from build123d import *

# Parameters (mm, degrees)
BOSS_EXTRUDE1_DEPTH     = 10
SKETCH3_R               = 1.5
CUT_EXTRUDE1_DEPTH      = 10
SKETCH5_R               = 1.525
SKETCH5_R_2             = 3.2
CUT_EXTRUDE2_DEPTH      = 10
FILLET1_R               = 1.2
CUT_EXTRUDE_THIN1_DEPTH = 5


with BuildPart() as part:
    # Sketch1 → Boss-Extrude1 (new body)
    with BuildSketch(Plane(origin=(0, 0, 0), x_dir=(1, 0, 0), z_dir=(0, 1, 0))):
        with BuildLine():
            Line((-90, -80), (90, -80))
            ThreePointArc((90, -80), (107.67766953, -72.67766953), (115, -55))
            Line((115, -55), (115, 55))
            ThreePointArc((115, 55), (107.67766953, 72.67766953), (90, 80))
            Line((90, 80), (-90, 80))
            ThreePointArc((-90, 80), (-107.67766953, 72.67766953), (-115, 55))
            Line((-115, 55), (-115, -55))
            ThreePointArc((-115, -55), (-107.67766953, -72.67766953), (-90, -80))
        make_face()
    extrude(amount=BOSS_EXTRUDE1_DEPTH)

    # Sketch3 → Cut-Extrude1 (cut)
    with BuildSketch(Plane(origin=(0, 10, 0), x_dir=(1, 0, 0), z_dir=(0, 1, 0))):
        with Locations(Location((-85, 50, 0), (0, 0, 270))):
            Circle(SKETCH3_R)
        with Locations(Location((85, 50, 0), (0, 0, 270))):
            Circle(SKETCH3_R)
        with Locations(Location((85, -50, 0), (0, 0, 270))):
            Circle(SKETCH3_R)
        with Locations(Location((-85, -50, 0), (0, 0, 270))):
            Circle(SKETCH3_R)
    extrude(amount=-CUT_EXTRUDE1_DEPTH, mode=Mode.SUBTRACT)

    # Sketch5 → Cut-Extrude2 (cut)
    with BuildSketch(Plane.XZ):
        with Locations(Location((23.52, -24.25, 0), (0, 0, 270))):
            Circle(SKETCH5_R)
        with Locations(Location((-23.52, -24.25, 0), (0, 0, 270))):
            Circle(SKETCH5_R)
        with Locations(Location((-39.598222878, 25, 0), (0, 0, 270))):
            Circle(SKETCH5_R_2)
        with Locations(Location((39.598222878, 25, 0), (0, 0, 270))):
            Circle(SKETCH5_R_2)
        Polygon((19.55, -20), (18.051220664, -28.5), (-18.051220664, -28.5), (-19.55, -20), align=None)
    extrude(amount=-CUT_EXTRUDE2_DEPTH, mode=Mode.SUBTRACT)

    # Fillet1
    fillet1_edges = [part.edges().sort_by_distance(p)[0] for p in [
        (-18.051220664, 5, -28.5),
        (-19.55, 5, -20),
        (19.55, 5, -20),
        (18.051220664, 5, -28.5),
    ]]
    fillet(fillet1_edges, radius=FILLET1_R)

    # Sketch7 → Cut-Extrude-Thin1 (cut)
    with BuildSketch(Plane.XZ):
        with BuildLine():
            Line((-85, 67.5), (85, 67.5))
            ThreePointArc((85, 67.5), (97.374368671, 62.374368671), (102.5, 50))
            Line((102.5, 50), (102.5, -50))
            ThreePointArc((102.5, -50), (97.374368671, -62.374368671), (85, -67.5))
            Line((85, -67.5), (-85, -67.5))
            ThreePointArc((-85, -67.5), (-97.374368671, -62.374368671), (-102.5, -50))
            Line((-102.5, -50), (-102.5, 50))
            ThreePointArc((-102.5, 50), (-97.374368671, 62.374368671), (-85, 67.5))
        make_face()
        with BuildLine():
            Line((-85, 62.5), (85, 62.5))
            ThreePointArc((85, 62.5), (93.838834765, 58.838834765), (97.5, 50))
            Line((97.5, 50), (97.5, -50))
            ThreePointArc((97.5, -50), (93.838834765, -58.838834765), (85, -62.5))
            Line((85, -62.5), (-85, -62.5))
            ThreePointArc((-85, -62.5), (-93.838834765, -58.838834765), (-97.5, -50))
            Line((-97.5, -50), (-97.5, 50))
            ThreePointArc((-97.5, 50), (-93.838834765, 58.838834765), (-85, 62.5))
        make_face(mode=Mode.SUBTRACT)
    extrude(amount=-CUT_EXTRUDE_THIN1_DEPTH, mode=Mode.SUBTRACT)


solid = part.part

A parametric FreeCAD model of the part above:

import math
import FreeCAD as App
import Part
import Sketcher
from FreeCAD import Vector
Q = App.Units.Quantity


def edges_at(feature, points):
    """Names of the edges that pass closest to the given points."""
    edges = feature.Shape.Edges
    near = lambda p: min(range(len(edges)), key=lambda i: edges[i].distToShape(Part.Vertex(*p))[0])
    return sorted({f"Edge{near(p) + 1}" for p in points})

doc = App.newDocument("Part")
body = doc.addObject("PartDesign::Body", "Body")

sketch1 = doc.addObject("Sketcher::SketchObject", "Sketch")
body.addObject(sketch1)
sketch1.AttachmentSupport = (doc.XZ_Plane, [""])
sketch1.MapMode = "FlatFace"
sketch1.addGeometry([
    Part.LineSegment(Vector(-90, 80, 0), Vector(90, 80, 0)),
    Part.ArcOfCircle(Part.Circle(Vector(90, 55, 0), Vector(0, 0, 1), 25), math.radians(0), math.radians(90)),
    Part.LineSegment(Vector(115, 55, 0), Vector(115, -55, 0)),
    Part.ArcOfCircle(Part.Circle(Vector(90, -55, 0), Vector(0, 0, 1), 25), math.radians(-90), math.radians(0)),
    Part.LineSegment(Vector(90, -80, 0), Vector(-90, -80, 0)),
    Part.ArcOfCircle(Part.Circle(Vector(-90, -55, 0), Vector(0, 0, 1), 25), math.radians(180), math.radians(270)),
    Part.LineSegment(Vector(-115, -55, 0), Vector(-115, 55, 0)),
    Part.ArcOfCircle(Part.Circle(Vector(-90, 55, 0), Vector(0, 0, 1), 25), math.radians(90), math.radians(180)),
], False)
sketch1.addConstraint([
    Sketcher.Constraint("Tangent", 0, 2, 1, 2),
    Sketcher.Constraint("Tangent", 1, 1, 2, 1),
    Sketcher.Constraint("Tangent", 2, 2, 3, 2),
    Sketcher.Constraint("Tangent", 3, 1, 4, 1),
    Sketcher.Constraint("Tangent", 4, 2, 5, 2),
    Sketcher.Constraint("Tangent", 5, 1, 6, 1),
    Sketcher.Constraint("Tangent", 6, 2, 7, 2),
    Sketcher.Constraint("Tangent", 7, 1, 0, 1),
    Sketcher.Constraint("Horizontal", 0),
    Sketcher.Constraint("Vertical", 2),
    Sketcher.Constraint("Horizontal", 4),
    Sketcher.Constraint("Vertical", 6),
    Sketcher.Constraint("Equal", 1, 3),
    Sketcher.Constraint("Equal", 3, 5),
    Sketcher.Constraint("Equal", 5, 7),
    Sketcher.Constraint("Symmetric", 1, 3, 5, 3, -1, 1),
    Sketcher.Constraint("Radius", 1, 25.0),
    Sketcher.Constraint("DistanceX", 0, 1, 0, 2, 180.0),
    Sketcher.Constraint("DistanceY", 2, 2, 2, 1, 110.0),
])
pad1 = doc.addObject("PartDesign::Pad", "Pad")
body.addObject(pad1)
pad1.Profile = sketch1
pad1.Length = 10
pad1.Reversed = True

sketch2 = doc.addObject("Sketcher::SketchObject", "Sketch001")
body.addObject(sketch2)
sketch2.AttachmentSupport = (doc.XZ_Plane, [""])
sketch2.MapMode = "FlatFace"
sketch2.AttachmentOffset = App.Placement(Vector(0, 0, -10), App.Rotation())
sketch2.addGeometry([
    Part.Circle(Vector(-85, -50, 0), Vector(0, 0, 1), 1.5),
    Part.Circle(Vector(85, -50, 0), Vector(0, 0, 1), 1.5),
    Part.Circle(Vector(85, 50, 0), Vector(0, 0, 1), 1.5),
    Part.Circle(Vector(-85, 50, 0), Vector(0, 0, 1), 1.5),
], False)
sketch2.addConstraint([
    Sketcher.Constraint("Equal", 0, 1),
    Sketcher.Constraint("Equal", 1, 2),
    Sketcher.Constraint("Equal", 2, 3),
    Sketcher.Constraint("Symmetric", 0, 3, 2, 3, -1, 1),
    Sketcher.Constraint("Symmetric", 1, 3, 3, 3, -1, 1),
    Sketcher.Constraint("Symmetric", 0, 3, 1, 3, -2),
    Sketcher.Constraint("Diameter", 0, 3.0),
    Sketcher.Constraint("DistanceX", 0, 3, -1, 1, 85.0),
    Sketcher.Constraint("DistanceY", 0, 3, -1, 1, 50.0),
])
pocket1 = doc.addObject("PartDesign::Pocket", "Pocket")
body.addObject(pocket1)
pocket1.Profile = sketch2
pocket1.Length = 10
pocket1.Reversed = True

sketch3 = doc.addObject("Sketcher::SketchObject", "Sketch002")
body.addObject(sketch3)
sketch3.AttachmentSupport = (doc.XZ_Plane, [""])
sketch3.MapMode = "FlatFace"
sketch3.addGeometry([
    Part.Circle(Vector(23.5, -24.2, 0), Vector(0, 0, 1), 1.5),
    Part.Circle(Vector(-23.5, -24.2, 0), Vector(0, 0, 1), 1.5),
    Part.Circle(Vector(-39.6, 25, 0), Vector(0, 0, 1), 3.2),
    Part.Circle(Vector(39.6, 25, 0), Vector(0, 0, 1), 3.2),
    Part.LineSegment(Vector(18.1, -28.5, 0), Vector(19.6, -20, 0)),
    Part.LineSegment(Vector(19.6, -20, 0), Vector(-19.6, -20, 0)),
    Part.LineSegment(Vector(-19.6, -20, 0), Vector(-18.1, -28.5, 0)),
    Part.LineSegment(Vector(-18.1, -28.5, 0), Vector(18.1, -28.5, 0)),
], False)
sketch3.addConstraint([
    Sketcher.Constraint("Coincident", 4, 2, 5, 1),
    Sketcher.Constraint("Coincident", 5, 2, 6, 1),
    Sketcher.Constraint("Coincident", 6, 2, 7, 1),
    Sketcher.Constraint("Coincident", 7, 2, 4, 1),
    Sketcher.Constraint("Horizontal", 5),
    Sketcher.Constraint("Horizontal", 7),
    Sketcher.Constraint("Equal", 0, 1),
    Sketcher.Constraint("Equal", 2, 3),
    Sketcher.Constraint("Symmetric", 0, 3, 1, 3, -2),
    Sketcher.Constraint("Symmetric", 2, 3, 3, 3, -2),
    Sketcher.Constraint("Equal", 4, 6),
    Sketcher.Constraint("Diameter", 2, 6.4),
    Sketcher.Constraint("Diameter", 0, 3.05),
    Sketcher.Constraint("Angle", 4, Q("80 deg")),
    Sketcher.Constraint("DistanceX", 5, 2, 5, 1, 39.1),
    Sketcher.Constraint("DistanceY", -1, 1, 2, 3, 25.0),
    Sketcher.Constraint("DistanceY", 4, 2, -1, 1, 20.0),
    Sketcher.Constraint("DistanceY", 6, 2, -1, 1, 28.5),
    Sketcher.Constraint("DistanceX", -1, 1, 0, 3, 23.52),
    Sketcher.Constraint("DistanceY", 0, 3, -1, 1, 24.25),
    Sketcher.Constraint("DistanceX", -1, 1, 4, 2, 19.55),
    Sketcher.Constraint("DistanceX", 2, 3, -1, 1, 39.598223),
])
pocket2 = doc.addObject("PartDesign::Pocket", "Pocket001")
body.addObject(pocket2)
pocket2.Profile = sketch3
pocket2.Length = 10
doc.recompute()

fillet = doc.addObject("PartDesign::Fillet", "Fillet")
body.addObject(fillet)
fillet.Base = (pocket2, edges_at(pocket2, [
    (-18.051, 5, -28.5),
    (-19.55, 5, -20),
    (19.55, 5, -20),
    (18.051, 5, -28.5),
]))
fillet.Radius = 1.2

sketch4 = doc.addObject("Sketcher::SketchObject", "Sketch003")
body.addObject(sketch4)
sketch4.AttachmentSupport = (doc.XZ_Plane, [""])
sketch4.MapMode = "FlatFace"
sketch4.addGeometry([
    Part.LineSegment(Vector(85, 68, 0), Vector(-85, 68, 0)),
    Part.ArcOfCircle(Part.Circle(Vector(-85, 50, 0), Vector(0, 0, 1), 17), math.radians(90), math.radians(180)),
    Part.LineSegment(Vector(-102, 50, 0), Vector(-102, -50, 0)),
    Part.ArcOfCircle(Part.Circle(Vector(-85, -50, 0), Vector(0, 0, 1), 17), math.radians(180), math.radians(270)),
    Part.LineSegment(Vector(-85, -68, 0), Vector(85, -68, 0)),
    Part.ArcOfCircle(Part.Circle(Vector(85, -50, 0), Vector(0, 0, 1), 17), math.radians(-90), math.radians(0)),
    Part.LineSegment(Vector(102, -50, 0), Vector(102, 50, 0)),
    Part.ArcOfCircle(Part.Circle(Vector(85, 50, 0), Vector(0, 0, 1), 17), math.radians(0), math.radians(90)),
    Part.LineSegment(Vector(-85, 62, 0), Vector(85, 62, 0)),
    Part.ArcOfCircle(Part.Circle(Vector(85, 50, 0), Vector(0, 0, 1), 12), math.radians(0), math.radians(90)),
    Part.LineSegment(Vector(98, 50, 0), Vector(98, -50, 0)),
    Part.ArcOfCircle(Part.Circle(Vector(85, -50, 0), Vector(0, 0, 1), 12), math.radians(-90), math.radians(0)),
    Part.LineSegment(Vector(85, -62, 0), Vector(-85, -62, 0)),
    Part.ArcOfCircle(Part.Circle(Vector(-85, -50, 0), Vector(0, 0, 1), 12), math.radians(180), math.radians(270)),
    Part.LineSegment(Vector(-98, -50, 0), Vector(-98, 50, 0)),
    Part.ArcOfCircle(Part.Circle(Vector(-85, 50, 0), Vector(0, 0, 1), 12), math.radians(90), math.radians(180)),
], False)
sketch4.addConstraint([
    Sketcher.Constraint("Tangent", 0, 2, 1, 1),
    Sketcher.Constraint("Tangent", 1, 2, 2, 1),
    Sketcher.Constraint("Tangent", 2, 2, 3, 1),
    Sketcher.Constraint("Tangent", 3, 2, 4, 1),
    Sketcher.Constraint("Tangent", 4, 2, 5, 1),
    Sketcher.Constraint("Tangent", 5, 2, 6, 1),
    Sketcher.Constraint("Tangent", 6, 2, 7, 1),
    Sketcher.Constraint("Tangent", 7, 2, 0, 1),
    Sketcher.Constraint("Tangent", 8, 2, 9, 2),
    Sketcher.Constraint("Tangent", 9, 1, 10, 1),
    Sketcher.Constraint("Tangent", 10, 2, 11, 2),
    Sketcher.Constraint("Tangent", 11, 1, 12, 1),
    Sketcher.Constraint("Tangent", 12, 2, 13, 2),
    Sketcher.Constraint("Tangent", 13, 1, 14, 1),
    Sketcher.Constraint("Tangent", 14, 2, 15, 2),
    Sketcher.Constraint("Tangent", 15, 1, 8, 1),
    Sketcher.Constraint("Horizontal", 0),
    Sketcher.Constraint("Vertical", 2),
    Sketcher.Constraint("Horizontal", 4),
    Sketcher.Constraint("Vertical", 6),
    Sketcher.Constraint("Horizontal", 8),
    Sketcher.Constraint("Vertical", 10),
    Sketcher.Constraint("Horizontal", 12),
    Sketcher.Constraint("Vertical", 14),
    Sketcher.Constraint("Coincident", 9, 3, 7, 3),
    Sketcher.Constraint("Coincident", 11, 3, 5, 3),
    Sketcher.Constraint("Coincident", 13, 3, 3, 3),
    Sketcher.Constraint("Equal", 1, 3),
    Sketcher.Constraint("Equal", 3, 5),
    Sketcher.Constraint("Equal", 5, 7),
    Sketcher.Constraint("Equal", 13, 15),
    Sketcher.Constraint("Symmetric", 1, 3, 5, 3, -1, 1),
    Sketcher.Constraint("Radius", 1, 17.5),
    Sketcher.Constraint("Radius", 9, 12.5),
    Sketcher.Constraint("DistanceX", 0, 2, 0, 1, 170.0),
    Sketcher.Constraint("DistanceY", 2, 2, 2, 1, 100.0),
])
pocket3 = doc.addObject("PartDesign::Pocket", "Pocket002")
body.addObject(pocket3)
pocket3.Profile = sketch4
pocket3.Length = 5

doc.recompute()
